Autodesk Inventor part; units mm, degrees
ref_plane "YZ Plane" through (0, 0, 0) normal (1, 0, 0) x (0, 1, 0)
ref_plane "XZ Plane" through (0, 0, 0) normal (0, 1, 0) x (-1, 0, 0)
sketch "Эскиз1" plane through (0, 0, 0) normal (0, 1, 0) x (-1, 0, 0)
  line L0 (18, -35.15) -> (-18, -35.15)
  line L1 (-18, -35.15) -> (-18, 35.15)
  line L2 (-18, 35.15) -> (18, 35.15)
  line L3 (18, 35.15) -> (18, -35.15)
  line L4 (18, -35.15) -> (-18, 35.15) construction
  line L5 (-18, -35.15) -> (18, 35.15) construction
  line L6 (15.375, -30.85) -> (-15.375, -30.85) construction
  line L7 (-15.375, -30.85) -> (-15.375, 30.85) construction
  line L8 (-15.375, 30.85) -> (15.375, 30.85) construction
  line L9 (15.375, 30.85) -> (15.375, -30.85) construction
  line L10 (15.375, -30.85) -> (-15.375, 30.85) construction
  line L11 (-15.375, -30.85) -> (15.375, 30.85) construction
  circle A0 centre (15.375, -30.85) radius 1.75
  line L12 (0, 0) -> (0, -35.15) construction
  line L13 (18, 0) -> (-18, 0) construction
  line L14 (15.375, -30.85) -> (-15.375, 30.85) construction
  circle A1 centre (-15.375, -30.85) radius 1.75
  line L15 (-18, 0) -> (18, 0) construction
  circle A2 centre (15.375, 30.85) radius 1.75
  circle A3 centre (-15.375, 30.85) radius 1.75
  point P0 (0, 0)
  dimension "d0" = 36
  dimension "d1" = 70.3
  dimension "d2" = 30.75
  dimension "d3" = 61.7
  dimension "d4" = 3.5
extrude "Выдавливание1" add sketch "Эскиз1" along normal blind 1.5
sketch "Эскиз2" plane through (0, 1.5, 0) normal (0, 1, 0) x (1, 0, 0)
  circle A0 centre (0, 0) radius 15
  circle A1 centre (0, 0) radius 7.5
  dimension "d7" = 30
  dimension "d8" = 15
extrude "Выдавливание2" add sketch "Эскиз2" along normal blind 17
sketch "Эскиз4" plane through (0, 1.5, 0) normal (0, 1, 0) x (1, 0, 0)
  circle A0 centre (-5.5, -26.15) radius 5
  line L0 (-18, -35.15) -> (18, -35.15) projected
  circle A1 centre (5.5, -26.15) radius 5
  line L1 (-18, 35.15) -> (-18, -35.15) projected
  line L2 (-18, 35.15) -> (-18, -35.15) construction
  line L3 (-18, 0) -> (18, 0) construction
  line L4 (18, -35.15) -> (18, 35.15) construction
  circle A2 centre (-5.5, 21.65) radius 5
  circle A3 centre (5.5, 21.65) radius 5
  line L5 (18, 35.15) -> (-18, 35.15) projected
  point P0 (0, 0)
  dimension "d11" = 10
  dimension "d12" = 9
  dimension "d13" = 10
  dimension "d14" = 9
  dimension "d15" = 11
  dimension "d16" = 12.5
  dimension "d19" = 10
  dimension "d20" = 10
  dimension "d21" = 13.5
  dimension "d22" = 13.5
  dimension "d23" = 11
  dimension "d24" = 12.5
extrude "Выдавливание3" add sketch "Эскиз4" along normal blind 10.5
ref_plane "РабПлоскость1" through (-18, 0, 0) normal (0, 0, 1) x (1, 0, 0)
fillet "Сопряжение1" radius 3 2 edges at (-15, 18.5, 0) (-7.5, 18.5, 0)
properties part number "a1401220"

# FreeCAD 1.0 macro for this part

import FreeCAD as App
import Part
import Sketcher
from FreeCAD import Vector


def edges_at(feature, points):
    """Names of the edges that pass closest to the given points."""
    edges = feature.Shape.Edges
    near = lambda p: min(range(len(edges)), key=lambda i: edges[i].distToShape(Part.Vertex(*p))[0])
    return sorted({f"Edge{near(p) + 1}" for p in points})

doc = App.newDocument("Part")
body = doc.addObject("PartDesign::Body", "Body")

# Sketch on XZ plane
sketch1 = body.newObject("Sketcher::SketchObject", "Sketch")
sketch1.AttachmentSupport = (doc.getObject("XZ_Plane"), [""])
sketch1.MapMode = "FlatFace"
sketch1.addGeometry([
    Part.LineSegment(Vector(18, -35.1, 0), Vector(-18, -35.1, 0)),  # 0
    Part.LineSegment(Vector(-18, -35.1, 0), Vector(-18, 35.1, 0)),  # 1
    Part.LineSegment(Vector(-18, 35.1, 0), Vector(18, 35.1, 0)),  # 2
    Part.LineSegment(Vector(18, 35.1, 0), Vector(18, -35.1, 0)),  # 3
    Part.Circle(Vector(15.4, -30.9, 0), Vector(0, 0, 1), 1.8),  # 4
    Part.Circle(Vector(-15.4, -30.9, 0), Vector(0, 0, 1), 1.8),  # 5
    Part.Circle(Vector(15.4, 30.9, 0), Vector(0, 0, 1), 1.8),  # 6
    Part.Circle(Vector(-15.4, 30.9, 0), Vector(0, 0, 1), 1.8),  # 7
], False)
sketch1.addConstraint([
    Sketcher.Constraint("Coincident", 0, 2, 1, 1),
    Sketcher.Constraint("Coincident", 1, 2, 2, 1),
    Sketcher.Constraint("Coincident", 2, 2, 3, 1),
    Sketcher.Constraint("Coincident", 3, 2, 0, 1),
    Sketcher.Constraint("Horizontal", 0),
    Sketcher.Constraint("Vertical", 1),
    Sketcher.Constraint("Horizontal", 2),
    Sketcher.Constraint("Vertical", 3),
    Sketcher.Constraint("Equal", 4, 5),
    Sketcher.Constraint("Equal", 5, 6),
    Sketcher.Constraint("Equal", 6, 7),
    Sketcher.Constraint("Symmetric", 5, 3, 6, 3, -1, 1),
    Sketcher.Constraint("Symmetric", 4, 3, 7, 3, -1, 1),
    Sketcher.Constraint("Symmetric", 0, 2, 2, 2, -1, 1),
    Sketcher.Constraint("Symmetric", 4, 3, 5, 3, -2),
    Sketcher.Constraint("Diameter", 4, 3.5),
    Sketcher.Constraint("DistanceX", 0, 2, 0, 1, 36.0),
    Sketcher.Constraint("DistanceY", 1, 1, 1, 2, 70.3),
    Sketcher.Constraint("DistanceY", 4, 3, 6, 3, 61.7),
    Sketcher.Constraint("DistanceX", 5, 3, 4, 3, 30.75),
])
pad1 = body.newObject("PartDesign::Pad", "Pad")
pad1.Profile = sketch1
pad1.Length = 1.5
pad1.Reversed = True

# Sketch on XZ plane
sketch2 = body.newObject("Sketcher::SketchObject", "Sketch001")
sketch2.AttachmentSupport = (doc.getObject("XZ_Plane"), [""])
sketch2.MapMode = "FlatFace"
sketch2.AttachmentOffset = App.Placement(Vector(0, 0, -1.5), App.Rotation())
sketch2.addGeometry([
    Part.Circle(Vector(0, 0, 0), Vector(0, 0, 1), 15),
    Part.Circle(Vector(0, 0, 0), Vector(0, 0, 1), 8),
], False)
sketch2.addConstraint([
    Sketcher.Constraint("Coincident", 0, 3, -1, 1),
    Sketcher.Constraint("Coincident", 1, 3, -1, 1),
    Sketcher.Constraint("Diameter", 0, 30.0),
    Sketcher.Constraint("Diameter", 1, 15.0),
])
pad2 = body.newObject("PartDesign::Pad", "Pad001")
pad2.Profile = sketch2
pad2.Length = 17
pad2.Reversed = True

# Sketch on XZ plane
sketch3 = body.newObject("Sketcher::SketchObject", "Sketch002")
sketch3.AttachmentSupport = (doc.getObject("XZ_Plane"), [""])
sketch3.MapMode = "FlatFace"
sketch3.AttachmentOffset = App.Placement(Vector(0, 0, -1.5), App.Rotation())
sketch3.addGeometry([
    Part.Circle(Vector(-6, 26, 0), Vector(0, 0, 1), 5),
    Part.Circle(Vector(6, 26, 0), Vector(0, 0, 1), 5),
    Part.Circle(Vector(-6, -22, 0), Vector(0, 0, 1), 5),
    Part.Circle(Vector(6, -22, 0), Vector(0, 0, 1), 5),
], False)
sketch3.addConstraint([
    Sketcher.Constraint("Equal", 0, 1),
    Sketcher.Constraint("Equal", 1, 2),
    Sketcher.Constraint("Equal", 2, 3),
    Sketcher.Constraint("Symmetric", 0, 3, 1, 3, -2),
    Sketcher.Constraint("Symmetric", 2, 3, 3, 3, -2),
    Sketcher.Constraint("Vertical", 0, 3, 2, 3),
    Sketcher.Constraint("Diameter", 0, 10.0),
    Sketcher.Constraint("DistanceX", 0, 3, 1, 3, 11.0),
    Sketcher.Constraint("DistanceY", 2, 3, 0, 3, 47.8),
    Sketcher.Constraint("DistanceY", -1, 1, 0, 3, 26.15),
])
pad3 = body.newObject("PartDesign::Pad", "Pad002")
pad3.Profile = sketch3
pad3.Length = 10.5
pad3.Reversed = True
doc.recompute()

fillet = body.newObject("PartDesign::Fillet", "Fillet")
fillet.Base = (pad3, edges_at(pad3, [(-15, 18.5, 0), (-7.5, 18.5, 0)]))
fillet.Radius = 3

doc.recompute()
